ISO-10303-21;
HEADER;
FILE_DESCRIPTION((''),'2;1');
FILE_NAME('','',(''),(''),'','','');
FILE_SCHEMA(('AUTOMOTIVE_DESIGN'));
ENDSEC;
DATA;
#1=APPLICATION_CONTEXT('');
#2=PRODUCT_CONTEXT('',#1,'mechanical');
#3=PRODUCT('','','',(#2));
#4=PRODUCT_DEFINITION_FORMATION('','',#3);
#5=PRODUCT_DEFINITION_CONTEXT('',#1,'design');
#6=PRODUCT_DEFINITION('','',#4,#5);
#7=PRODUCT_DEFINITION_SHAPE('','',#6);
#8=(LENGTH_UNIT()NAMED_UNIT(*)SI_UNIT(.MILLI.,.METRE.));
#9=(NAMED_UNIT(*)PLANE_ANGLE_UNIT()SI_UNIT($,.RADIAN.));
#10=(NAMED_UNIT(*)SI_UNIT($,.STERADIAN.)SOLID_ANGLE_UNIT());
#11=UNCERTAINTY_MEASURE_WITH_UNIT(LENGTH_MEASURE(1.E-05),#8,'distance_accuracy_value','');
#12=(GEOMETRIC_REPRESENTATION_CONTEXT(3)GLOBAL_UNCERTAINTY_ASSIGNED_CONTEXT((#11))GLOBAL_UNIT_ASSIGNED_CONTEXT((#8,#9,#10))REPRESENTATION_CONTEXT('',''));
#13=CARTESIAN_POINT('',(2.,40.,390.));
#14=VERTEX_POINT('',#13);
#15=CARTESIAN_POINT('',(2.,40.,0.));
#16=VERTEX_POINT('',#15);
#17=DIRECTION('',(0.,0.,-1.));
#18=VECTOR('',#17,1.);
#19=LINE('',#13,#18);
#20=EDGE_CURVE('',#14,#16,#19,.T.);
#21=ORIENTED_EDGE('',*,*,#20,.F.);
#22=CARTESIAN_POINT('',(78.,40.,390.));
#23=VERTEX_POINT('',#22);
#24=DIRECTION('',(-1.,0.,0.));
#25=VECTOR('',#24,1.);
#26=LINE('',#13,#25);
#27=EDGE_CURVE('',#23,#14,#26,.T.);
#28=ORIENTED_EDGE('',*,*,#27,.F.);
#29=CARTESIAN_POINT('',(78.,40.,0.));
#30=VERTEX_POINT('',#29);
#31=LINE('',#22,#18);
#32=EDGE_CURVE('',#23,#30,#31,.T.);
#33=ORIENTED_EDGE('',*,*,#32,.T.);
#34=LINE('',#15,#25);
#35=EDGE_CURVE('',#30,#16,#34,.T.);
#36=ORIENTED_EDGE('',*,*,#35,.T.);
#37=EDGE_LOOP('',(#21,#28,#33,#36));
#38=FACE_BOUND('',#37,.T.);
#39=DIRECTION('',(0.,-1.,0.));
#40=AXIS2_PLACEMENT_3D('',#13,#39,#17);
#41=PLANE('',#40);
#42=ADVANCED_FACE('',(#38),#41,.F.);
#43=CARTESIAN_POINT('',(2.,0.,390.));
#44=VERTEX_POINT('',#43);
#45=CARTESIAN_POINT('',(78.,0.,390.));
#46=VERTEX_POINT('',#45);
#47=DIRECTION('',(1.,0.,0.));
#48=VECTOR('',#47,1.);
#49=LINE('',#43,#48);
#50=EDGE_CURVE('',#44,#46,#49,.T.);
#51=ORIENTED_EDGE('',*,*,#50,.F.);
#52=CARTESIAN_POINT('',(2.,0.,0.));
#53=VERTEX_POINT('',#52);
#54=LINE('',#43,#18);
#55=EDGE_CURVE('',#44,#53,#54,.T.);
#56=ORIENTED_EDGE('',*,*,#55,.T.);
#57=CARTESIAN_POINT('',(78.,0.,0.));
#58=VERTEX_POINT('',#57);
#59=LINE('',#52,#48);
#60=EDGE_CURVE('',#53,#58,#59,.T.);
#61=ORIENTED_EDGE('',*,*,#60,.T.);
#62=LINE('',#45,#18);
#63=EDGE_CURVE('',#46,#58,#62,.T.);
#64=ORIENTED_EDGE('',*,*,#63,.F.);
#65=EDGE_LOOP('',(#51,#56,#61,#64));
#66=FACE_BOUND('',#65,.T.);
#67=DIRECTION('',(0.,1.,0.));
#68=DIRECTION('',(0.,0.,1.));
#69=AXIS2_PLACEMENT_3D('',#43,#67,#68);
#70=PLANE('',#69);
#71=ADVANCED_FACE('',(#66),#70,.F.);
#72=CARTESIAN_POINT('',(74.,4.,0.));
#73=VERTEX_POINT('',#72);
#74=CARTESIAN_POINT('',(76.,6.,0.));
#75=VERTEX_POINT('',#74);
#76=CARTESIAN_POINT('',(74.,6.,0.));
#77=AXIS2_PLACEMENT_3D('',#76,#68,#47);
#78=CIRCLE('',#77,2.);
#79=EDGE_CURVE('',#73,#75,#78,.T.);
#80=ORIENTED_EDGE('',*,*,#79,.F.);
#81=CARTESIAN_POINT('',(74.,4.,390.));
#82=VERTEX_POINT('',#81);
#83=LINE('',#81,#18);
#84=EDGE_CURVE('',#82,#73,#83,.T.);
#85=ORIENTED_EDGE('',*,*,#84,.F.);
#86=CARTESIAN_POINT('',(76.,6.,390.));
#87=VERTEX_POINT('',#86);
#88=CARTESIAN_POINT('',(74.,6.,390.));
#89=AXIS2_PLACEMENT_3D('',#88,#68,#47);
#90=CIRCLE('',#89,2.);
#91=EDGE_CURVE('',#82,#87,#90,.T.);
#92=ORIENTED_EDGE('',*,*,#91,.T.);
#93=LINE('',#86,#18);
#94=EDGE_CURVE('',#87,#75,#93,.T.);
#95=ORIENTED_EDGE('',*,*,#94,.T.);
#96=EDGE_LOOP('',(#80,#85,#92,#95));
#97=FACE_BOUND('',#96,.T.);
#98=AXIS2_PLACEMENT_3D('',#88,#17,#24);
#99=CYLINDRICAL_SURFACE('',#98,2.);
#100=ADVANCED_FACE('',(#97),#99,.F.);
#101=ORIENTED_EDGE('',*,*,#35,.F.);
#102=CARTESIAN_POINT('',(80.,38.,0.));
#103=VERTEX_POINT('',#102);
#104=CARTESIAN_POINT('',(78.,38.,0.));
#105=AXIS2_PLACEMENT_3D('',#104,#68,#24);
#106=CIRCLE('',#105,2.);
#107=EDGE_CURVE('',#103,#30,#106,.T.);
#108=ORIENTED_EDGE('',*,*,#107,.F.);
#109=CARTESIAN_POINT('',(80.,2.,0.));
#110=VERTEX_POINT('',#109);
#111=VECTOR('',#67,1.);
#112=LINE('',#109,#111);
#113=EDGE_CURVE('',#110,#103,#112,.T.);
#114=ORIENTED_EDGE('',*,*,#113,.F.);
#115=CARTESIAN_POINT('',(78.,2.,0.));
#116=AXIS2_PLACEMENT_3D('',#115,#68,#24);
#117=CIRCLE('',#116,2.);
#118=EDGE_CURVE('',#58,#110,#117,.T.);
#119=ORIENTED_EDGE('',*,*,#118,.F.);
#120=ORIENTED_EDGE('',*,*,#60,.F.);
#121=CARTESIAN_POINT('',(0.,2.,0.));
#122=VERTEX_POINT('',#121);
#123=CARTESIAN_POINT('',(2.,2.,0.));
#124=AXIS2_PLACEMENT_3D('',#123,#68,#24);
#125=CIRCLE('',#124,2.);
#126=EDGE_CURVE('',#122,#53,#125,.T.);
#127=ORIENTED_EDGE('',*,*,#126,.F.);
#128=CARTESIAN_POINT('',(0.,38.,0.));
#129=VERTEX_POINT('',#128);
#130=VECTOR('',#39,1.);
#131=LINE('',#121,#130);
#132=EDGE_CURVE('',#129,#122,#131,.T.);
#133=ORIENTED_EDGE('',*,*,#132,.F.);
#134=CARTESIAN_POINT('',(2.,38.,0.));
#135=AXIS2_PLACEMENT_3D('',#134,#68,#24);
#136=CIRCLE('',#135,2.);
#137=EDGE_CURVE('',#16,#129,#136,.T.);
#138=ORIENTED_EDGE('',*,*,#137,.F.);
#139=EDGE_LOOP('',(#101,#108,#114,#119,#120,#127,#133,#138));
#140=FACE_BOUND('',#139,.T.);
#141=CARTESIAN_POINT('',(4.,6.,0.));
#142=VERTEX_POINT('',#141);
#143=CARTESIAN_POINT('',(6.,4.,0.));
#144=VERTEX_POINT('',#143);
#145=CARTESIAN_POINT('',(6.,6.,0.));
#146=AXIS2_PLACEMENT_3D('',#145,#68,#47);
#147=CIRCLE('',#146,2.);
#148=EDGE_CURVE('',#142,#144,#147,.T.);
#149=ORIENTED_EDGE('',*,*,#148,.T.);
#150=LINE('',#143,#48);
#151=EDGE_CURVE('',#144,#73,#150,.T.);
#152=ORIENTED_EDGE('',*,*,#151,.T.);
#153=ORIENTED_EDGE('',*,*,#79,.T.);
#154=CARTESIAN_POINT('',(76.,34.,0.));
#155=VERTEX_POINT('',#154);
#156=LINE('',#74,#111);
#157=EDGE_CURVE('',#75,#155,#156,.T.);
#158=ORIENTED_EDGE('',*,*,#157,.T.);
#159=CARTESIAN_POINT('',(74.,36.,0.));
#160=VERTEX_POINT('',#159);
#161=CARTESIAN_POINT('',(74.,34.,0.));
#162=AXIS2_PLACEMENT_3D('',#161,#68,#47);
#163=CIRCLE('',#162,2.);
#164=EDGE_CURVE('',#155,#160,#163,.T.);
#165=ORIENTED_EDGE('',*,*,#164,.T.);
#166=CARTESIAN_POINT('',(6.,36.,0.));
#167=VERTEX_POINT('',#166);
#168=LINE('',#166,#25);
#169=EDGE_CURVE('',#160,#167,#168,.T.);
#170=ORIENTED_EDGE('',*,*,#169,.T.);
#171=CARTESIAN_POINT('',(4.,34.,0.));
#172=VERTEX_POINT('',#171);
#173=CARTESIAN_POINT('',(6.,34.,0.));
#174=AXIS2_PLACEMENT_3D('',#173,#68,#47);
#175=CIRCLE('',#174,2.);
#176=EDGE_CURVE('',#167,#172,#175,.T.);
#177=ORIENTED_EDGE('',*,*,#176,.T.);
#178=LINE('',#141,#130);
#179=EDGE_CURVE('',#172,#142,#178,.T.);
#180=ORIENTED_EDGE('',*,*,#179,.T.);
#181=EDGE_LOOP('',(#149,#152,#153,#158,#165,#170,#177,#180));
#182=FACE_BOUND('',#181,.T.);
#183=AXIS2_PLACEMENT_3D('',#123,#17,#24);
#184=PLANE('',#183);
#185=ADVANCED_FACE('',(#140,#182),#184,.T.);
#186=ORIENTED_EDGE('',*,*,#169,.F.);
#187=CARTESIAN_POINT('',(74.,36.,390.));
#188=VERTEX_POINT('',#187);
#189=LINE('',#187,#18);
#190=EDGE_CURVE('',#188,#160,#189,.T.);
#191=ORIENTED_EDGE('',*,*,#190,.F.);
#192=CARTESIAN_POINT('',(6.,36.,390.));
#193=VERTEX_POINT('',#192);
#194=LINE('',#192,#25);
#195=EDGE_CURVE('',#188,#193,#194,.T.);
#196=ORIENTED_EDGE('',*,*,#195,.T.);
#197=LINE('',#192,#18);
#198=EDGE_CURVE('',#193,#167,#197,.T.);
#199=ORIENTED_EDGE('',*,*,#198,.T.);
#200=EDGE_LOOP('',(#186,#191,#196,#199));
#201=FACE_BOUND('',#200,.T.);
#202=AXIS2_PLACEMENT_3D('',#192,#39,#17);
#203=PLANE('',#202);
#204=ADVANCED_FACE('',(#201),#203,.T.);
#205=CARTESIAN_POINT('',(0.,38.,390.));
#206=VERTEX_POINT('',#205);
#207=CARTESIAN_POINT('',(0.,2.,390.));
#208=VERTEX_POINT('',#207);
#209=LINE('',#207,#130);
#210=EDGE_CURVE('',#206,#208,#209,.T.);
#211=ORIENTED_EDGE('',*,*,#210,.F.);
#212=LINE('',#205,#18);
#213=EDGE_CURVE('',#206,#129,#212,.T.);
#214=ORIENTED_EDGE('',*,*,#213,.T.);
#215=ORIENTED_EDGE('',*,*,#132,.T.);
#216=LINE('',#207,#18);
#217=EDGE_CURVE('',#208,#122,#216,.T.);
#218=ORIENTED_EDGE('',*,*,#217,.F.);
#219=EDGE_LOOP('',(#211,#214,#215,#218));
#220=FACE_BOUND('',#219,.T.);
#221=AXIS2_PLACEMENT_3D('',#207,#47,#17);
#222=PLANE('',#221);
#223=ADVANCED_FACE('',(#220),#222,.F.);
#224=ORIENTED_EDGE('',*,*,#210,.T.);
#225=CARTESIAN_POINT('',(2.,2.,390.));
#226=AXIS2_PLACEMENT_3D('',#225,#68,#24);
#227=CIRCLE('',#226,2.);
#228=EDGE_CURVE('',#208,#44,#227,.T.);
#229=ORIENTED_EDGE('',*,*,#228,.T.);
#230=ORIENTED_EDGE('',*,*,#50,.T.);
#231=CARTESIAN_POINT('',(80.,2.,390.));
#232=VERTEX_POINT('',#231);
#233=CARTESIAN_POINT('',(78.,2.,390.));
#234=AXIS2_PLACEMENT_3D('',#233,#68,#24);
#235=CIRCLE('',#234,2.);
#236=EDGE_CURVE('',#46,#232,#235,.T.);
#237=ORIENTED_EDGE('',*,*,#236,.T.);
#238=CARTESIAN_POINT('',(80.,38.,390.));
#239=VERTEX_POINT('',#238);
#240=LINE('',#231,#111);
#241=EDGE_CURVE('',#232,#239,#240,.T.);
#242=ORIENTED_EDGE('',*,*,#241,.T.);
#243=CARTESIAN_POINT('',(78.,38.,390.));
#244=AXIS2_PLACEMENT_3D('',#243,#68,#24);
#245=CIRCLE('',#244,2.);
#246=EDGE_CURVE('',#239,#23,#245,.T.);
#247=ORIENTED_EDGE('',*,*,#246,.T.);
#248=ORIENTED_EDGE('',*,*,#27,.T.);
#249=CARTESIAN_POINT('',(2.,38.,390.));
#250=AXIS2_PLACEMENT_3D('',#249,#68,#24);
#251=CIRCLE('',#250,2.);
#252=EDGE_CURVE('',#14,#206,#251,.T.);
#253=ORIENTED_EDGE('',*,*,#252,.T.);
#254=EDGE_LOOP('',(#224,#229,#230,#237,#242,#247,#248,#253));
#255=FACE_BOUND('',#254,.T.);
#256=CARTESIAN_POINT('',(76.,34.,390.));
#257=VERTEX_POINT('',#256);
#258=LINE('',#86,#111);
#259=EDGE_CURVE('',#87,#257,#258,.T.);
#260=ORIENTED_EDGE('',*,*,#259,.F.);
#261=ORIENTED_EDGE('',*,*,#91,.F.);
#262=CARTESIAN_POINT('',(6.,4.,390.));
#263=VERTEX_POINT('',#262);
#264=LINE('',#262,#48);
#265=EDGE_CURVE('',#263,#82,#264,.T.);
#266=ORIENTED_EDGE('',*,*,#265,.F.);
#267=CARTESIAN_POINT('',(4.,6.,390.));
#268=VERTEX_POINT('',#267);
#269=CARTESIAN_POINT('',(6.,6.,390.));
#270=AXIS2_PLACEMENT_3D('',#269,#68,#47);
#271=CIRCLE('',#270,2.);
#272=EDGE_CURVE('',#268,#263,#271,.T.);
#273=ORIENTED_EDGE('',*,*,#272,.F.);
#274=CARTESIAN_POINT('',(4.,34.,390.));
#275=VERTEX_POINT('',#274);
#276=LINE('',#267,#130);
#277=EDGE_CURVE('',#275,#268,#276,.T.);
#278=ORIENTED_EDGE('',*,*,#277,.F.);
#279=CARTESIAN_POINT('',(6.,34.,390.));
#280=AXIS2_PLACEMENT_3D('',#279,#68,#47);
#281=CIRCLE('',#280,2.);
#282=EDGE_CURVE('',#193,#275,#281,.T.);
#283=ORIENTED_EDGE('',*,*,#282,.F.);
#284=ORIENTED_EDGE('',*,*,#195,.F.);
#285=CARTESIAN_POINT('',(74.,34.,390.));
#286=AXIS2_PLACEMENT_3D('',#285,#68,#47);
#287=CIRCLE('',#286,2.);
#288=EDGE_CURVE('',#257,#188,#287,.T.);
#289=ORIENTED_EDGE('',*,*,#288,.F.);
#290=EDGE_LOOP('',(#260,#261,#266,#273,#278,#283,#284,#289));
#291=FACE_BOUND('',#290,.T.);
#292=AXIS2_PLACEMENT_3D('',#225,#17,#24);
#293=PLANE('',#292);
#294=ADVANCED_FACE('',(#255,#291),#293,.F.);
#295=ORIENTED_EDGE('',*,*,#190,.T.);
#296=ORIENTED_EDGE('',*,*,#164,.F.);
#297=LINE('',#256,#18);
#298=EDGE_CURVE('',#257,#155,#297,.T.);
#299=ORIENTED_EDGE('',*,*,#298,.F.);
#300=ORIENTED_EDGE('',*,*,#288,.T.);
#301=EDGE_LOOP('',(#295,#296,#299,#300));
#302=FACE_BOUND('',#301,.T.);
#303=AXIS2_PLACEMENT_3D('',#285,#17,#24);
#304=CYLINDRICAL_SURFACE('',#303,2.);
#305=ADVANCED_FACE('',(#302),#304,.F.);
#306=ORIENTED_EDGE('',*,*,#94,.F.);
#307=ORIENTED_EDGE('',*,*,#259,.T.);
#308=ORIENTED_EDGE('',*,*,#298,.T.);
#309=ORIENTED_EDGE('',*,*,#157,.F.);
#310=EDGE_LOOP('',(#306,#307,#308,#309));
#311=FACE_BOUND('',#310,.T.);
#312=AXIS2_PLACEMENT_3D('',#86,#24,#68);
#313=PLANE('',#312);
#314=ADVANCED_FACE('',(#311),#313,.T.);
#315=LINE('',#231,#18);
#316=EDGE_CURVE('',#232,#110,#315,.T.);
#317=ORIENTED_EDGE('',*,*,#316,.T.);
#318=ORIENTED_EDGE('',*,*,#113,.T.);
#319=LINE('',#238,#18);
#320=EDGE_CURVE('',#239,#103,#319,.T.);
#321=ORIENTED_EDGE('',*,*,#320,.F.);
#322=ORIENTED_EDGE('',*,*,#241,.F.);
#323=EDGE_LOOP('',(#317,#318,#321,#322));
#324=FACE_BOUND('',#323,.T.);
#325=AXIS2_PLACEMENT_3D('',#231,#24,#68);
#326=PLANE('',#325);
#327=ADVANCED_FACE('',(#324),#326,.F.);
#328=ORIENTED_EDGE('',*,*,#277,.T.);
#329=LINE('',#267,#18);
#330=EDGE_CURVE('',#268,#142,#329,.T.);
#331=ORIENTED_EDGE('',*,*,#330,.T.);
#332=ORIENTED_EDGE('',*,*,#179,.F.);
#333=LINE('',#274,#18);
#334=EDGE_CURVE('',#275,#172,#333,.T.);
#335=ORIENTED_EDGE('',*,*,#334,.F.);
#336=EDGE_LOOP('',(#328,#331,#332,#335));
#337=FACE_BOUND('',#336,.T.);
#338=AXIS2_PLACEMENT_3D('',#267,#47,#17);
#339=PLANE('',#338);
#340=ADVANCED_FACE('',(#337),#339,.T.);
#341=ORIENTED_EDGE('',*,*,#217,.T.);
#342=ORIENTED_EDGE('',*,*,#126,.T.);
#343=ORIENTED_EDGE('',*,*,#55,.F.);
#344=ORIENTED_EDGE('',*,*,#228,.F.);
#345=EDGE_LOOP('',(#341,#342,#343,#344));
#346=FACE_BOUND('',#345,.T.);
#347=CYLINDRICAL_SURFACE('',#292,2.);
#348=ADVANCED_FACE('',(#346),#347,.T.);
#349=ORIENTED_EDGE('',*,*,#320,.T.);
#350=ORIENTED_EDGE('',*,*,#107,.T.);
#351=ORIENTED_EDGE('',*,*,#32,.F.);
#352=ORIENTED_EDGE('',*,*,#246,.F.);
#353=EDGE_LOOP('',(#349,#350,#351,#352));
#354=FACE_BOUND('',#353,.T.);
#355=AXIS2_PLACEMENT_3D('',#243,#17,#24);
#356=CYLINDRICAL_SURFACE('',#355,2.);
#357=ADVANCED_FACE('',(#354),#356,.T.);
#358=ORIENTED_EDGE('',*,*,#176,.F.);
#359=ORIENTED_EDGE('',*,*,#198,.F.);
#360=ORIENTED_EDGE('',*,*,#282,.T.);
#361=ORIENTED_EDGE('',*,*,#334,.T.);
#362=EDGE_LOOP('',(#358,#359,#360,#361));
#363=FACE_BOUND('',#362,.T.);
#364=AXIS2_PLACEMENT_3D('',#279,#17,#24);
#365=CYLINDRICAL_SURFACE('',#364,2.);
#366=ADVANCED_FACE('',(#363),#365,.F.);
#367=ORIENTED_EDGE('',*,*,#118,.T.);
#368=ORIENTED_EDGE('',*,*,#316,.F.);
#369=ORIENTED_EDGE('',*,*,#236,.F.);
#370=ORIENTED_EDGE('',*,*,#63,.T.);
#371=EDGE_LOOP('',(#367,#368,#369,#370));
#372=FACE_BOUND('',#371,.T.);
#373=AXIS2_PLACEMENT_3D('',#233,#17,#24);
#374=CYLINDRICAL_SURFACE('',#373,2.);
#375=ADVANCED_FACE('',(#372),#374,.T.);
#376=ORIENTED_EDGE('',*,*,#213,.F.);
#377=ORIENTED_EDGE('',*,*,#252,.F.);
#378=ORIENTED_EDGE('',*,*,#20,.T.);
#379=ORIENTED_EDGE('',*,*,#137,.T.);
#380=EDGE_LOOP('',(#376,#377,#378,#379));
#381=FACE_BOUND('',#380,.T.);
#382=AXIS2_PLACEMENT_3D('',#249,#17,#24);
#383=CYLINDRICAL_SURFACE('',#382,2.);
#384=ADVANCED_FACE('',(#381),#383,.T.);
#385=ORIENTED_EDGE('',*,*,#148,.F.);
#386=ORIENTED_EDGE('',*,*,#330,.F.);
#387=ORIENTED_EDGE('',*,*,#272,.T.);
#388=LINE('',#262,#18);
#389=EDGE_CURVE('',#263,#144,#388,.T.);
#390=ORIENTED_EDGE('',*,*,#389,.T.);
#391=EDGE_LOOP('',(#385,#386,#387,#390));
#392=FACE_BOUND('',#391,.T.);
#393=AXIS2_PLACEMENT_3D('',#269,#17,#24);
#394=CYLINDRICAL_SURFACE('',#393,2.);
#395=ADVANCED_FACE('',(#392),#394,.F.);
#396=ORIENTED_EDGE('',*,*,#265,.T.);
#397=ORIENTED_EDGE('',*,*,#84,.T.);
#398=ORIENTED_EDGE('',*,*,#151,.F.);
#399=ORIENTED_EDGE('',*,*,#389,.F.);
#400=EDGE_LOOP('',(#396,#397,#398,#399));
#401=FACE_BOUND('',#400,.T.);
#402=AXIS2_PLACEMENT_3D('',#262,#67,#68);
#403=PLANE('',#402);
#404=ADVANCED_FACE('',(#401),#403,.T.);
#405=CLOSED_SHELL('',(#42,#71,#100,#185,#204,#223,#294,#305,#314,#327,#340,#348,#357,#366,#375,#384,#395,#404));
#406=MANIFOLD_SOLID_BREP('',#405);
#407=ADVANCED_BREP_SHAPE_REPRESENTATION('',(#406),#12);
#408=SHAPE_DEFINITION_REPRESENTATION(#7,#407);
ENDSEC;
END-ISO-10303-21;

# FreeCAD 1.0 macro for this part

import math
import FreeCAD as App
import Part
import Sketcher
Q = App.Units.Quantity

doc = App.newDocument("Part")
body = doc.addObject("PartDesign::Body", "Body")

# Sketch on XY plane
sketch1 = body.newObject("Sketcher::SketchObject", "Sketch")
sketch1.AttachmentSupport = (doc.getObject("XY_Plane"), [""])
sketch1.MapMode = "FlatFace"
sketch1.addGeometry(Part.LineSegment(App.Vector(2, 0, 0), App.Vector(78, 0, 0)), False)
sketch1.addGeometry(Part.ArcOfCircle(Part.Circle(App.Vector(78, 2, 0), App.Vector(0, 0, 1), 2), math.radians(-90), math.radians(0)), False)
sketch1.addGeometry(Part.LineSegment(App.Vector(80, 2, 0), App.Vector(80, 38, 0)), False)
sketch1.addGeometry(Part.ArcOfCircle(Part.Circle(App.Vector(78, 38, 0), App.Vector(0, 0, 1), 2), math.radians(0), math.radians(90)), False)
sketch1.addGeometry(Part.LineSegment(App.Vector(78, 40, 0), App.Vector(2, 40, 0)), False)
sketch1.addGeometry(Part.ArcOfCircle(Part.Circle(App.Vector(2, 38, 0), App.Vector(0, 0, 1), 2), math.radians(90), math.radians(180)), False)
sketch1.addGeometry(Part.LineSegment(App.Vector(0, 38, 0), App.Vector(0, 2, 0)), False)
sketch1.addGeometry(Part.ArcOfCircle(Part.Circle(App.Vector(2, 2, 0), App.Vector(0, 0, 1), 2), math.radians(-180), math.radians(-90)), False)
sketch1.addGeometry(Part.LineSegment(App.Vector(74, 4, 0), App.Vector(6, 4, 0)), False)
sketch1.addGeometry(Part.ArcOfCircle(Part.Circle(App.Vector(6, 6, 0), App.Vector(0, 0, 1), 2), math.radians(-180), math.radians(-90)), False)
sketch1.addGeometry(Part.LineSegment(App.Vector(4, 6, 0), App.Vector(4, 34, 0)), False)
sketch1.addGeometry(Part.ArcOfCircle(Part.Circle(App.Vector(6, 34, 0), App.Vector(0, 0, 1), 2), math.radians(90), math.radians(180)), False)
sketch1.addGeometry(Part.LineSegment(App.Vector(6, 36, 0), App.Vector(74, 36, 0)), False)
sketch1.addGeometry(Part.ArcOfCircle(Part.Circle(App.Vector(74, 34, 0), App.Vector(0, 0, 1), 2), math.radians(0), math.radians(90)), False)
sketch1.addGeometry(Part.LineSegment(App.Vector(76, 34, 0), App.Vector(76, 6, 0)), False)
sketch1.addGeometry(Part.ArcOfCircle(Part.Circle(App.Vector(74, 6, 0), App.Vector(0, 0, 1), 2), math.radians(-90), math.radians(0)), False)
sketch1.addConstraint(Sketcher.Constraint("Tangent", 0, 2, 1, 1))
sketch1.addConstraint(Sketcher.Constraint("Tangent", 1, 2, 2, 1))
sketch1.addConstraint(Sketcher.Constraint("Tangent", 2, 2, 3, 1))
sketch1.addConstraint(Sketcher.Constraint("Tangent", 3, 2, 4, 1))
sketch1.addConstraint(Sketcher.Constraint("Tangent", 4, 2, 5, 1))
sketch1.addConstraint(Sketcher.Constraint("Tangent", 5, 2, 6, 1))
sketch1.addConstraint(Sketcher.Constraint("Tangent", 6, 2, 7, 1))
sketch1.addConstraint(Sketcher.Constraint("Tangent", 7, 2, 0, 1))
sketch1.addConstraint(Sketcher.Constraint("Tangent", 8, 2, 9, 2))
sketch1.addConstraint(Sketcher.Constraint("Tangent", 9, 1, 10, 1))
sketch1.addConstraint(Sketcher.Constraint("Tangent", 10, 2, 11, 2))
sketch1.addConstraint(Sketcher.Constraint("Tangent", 11, 1, 12, 1))
sketch1.addConstraint(Sketcher.Constraint("Tangent", 12, 2, 13, 2))
sketch1.addConstraint(Sketcher.Constraint("Tangent", 13, 1, 14, 1))
sketch1.addConstraint(Sketcher.Constraint("Tangent", 14, 2, 15, 2))
sketch1.addConstraint(Sketcher.Constraint("Tangent", 15, 1, 8, 1))
sketch1.addConstraint(Sketcher.Constraint("Horizontal", 0))
sketch1.addConstraint(Sketcher.Constraint("Vertical", 2))
sketch1.addConstraint(Sketcher.Constraint("Horizontal", 4))
sketch1.addConstraint(Sketcher.Constraint("Vertical", 6))
sketch1.addConstraint(Sketcher.Constraint("Horizontal", 8))
sketch1.addConstraint(Sketcher.Constraint("Vertical", 10))
sketch1.addConstraint(Sketcher.Constraint("Horizontal", 12))
sketch1.addConstraint(Sketcher.Constraint("Vertical", 14))
sketch1.addConstraint(Sketcher.Constraint("Equal", 1, 3))
sketch1.addConstraint(Sketcher.Constraint("Equal", 3, 5))
sketch1.addConstraint(Sketcher.Constraint("Equal", 5, 7))
sketch1.addConstraint(Sketcher.Constraint("Equal", 7, 9))
sketch1.addConstraint(Sketcher.Constraint("Equal", 9, 11))
sketch1.addConstraint(Sketcher.Constraint("Equal", 11, 13))
sketch1.addConstraint(Sketcher.Constraint("Equal", 13, 15))
sketch1.addConstraint(Sketcher.Constraint("PointOnObject", 0, 2, -1))
sketch1.addConstraint(Sketcher.Constraint("PointOnObject", 5, 2, -2))
sketch1.addConstraint(Sketcher.Constraint("Radius", 1, Q("2 mm")))
sketch1.addConstraint(Sketcher.Constraint("DistanceX", 0, 1, 0, 2, Q("76 mm")))
sketch1.addConstraint(Sketcher.Constraint("DistanceX", 8, 2, 8, 1, Q("68 mm")))
sketch1.addConstraint(Sketcher.Constraint("DistanceY", 2, 1, 2, 2, Q("36 mm")))
sketch1.addConstraint(Sketcher.Constraint("DistanceY", 10, 1, 10, 2, Q("28 mm")))
sketch1.addConstraint(Sketcher.Constraint("DistanceX", -1, 1, 9, 3, Q("6 mm")))
sketch1.addConstraint(Sketcher.Constraint("DistanceY", -1, 1, 9, 3, Q("6 mm")))
pad1 = body.newObject("PartDesign::Pad", "Pad")
pad1.Profile = sketch1
pad1.Length = 390

doc.recompute()
